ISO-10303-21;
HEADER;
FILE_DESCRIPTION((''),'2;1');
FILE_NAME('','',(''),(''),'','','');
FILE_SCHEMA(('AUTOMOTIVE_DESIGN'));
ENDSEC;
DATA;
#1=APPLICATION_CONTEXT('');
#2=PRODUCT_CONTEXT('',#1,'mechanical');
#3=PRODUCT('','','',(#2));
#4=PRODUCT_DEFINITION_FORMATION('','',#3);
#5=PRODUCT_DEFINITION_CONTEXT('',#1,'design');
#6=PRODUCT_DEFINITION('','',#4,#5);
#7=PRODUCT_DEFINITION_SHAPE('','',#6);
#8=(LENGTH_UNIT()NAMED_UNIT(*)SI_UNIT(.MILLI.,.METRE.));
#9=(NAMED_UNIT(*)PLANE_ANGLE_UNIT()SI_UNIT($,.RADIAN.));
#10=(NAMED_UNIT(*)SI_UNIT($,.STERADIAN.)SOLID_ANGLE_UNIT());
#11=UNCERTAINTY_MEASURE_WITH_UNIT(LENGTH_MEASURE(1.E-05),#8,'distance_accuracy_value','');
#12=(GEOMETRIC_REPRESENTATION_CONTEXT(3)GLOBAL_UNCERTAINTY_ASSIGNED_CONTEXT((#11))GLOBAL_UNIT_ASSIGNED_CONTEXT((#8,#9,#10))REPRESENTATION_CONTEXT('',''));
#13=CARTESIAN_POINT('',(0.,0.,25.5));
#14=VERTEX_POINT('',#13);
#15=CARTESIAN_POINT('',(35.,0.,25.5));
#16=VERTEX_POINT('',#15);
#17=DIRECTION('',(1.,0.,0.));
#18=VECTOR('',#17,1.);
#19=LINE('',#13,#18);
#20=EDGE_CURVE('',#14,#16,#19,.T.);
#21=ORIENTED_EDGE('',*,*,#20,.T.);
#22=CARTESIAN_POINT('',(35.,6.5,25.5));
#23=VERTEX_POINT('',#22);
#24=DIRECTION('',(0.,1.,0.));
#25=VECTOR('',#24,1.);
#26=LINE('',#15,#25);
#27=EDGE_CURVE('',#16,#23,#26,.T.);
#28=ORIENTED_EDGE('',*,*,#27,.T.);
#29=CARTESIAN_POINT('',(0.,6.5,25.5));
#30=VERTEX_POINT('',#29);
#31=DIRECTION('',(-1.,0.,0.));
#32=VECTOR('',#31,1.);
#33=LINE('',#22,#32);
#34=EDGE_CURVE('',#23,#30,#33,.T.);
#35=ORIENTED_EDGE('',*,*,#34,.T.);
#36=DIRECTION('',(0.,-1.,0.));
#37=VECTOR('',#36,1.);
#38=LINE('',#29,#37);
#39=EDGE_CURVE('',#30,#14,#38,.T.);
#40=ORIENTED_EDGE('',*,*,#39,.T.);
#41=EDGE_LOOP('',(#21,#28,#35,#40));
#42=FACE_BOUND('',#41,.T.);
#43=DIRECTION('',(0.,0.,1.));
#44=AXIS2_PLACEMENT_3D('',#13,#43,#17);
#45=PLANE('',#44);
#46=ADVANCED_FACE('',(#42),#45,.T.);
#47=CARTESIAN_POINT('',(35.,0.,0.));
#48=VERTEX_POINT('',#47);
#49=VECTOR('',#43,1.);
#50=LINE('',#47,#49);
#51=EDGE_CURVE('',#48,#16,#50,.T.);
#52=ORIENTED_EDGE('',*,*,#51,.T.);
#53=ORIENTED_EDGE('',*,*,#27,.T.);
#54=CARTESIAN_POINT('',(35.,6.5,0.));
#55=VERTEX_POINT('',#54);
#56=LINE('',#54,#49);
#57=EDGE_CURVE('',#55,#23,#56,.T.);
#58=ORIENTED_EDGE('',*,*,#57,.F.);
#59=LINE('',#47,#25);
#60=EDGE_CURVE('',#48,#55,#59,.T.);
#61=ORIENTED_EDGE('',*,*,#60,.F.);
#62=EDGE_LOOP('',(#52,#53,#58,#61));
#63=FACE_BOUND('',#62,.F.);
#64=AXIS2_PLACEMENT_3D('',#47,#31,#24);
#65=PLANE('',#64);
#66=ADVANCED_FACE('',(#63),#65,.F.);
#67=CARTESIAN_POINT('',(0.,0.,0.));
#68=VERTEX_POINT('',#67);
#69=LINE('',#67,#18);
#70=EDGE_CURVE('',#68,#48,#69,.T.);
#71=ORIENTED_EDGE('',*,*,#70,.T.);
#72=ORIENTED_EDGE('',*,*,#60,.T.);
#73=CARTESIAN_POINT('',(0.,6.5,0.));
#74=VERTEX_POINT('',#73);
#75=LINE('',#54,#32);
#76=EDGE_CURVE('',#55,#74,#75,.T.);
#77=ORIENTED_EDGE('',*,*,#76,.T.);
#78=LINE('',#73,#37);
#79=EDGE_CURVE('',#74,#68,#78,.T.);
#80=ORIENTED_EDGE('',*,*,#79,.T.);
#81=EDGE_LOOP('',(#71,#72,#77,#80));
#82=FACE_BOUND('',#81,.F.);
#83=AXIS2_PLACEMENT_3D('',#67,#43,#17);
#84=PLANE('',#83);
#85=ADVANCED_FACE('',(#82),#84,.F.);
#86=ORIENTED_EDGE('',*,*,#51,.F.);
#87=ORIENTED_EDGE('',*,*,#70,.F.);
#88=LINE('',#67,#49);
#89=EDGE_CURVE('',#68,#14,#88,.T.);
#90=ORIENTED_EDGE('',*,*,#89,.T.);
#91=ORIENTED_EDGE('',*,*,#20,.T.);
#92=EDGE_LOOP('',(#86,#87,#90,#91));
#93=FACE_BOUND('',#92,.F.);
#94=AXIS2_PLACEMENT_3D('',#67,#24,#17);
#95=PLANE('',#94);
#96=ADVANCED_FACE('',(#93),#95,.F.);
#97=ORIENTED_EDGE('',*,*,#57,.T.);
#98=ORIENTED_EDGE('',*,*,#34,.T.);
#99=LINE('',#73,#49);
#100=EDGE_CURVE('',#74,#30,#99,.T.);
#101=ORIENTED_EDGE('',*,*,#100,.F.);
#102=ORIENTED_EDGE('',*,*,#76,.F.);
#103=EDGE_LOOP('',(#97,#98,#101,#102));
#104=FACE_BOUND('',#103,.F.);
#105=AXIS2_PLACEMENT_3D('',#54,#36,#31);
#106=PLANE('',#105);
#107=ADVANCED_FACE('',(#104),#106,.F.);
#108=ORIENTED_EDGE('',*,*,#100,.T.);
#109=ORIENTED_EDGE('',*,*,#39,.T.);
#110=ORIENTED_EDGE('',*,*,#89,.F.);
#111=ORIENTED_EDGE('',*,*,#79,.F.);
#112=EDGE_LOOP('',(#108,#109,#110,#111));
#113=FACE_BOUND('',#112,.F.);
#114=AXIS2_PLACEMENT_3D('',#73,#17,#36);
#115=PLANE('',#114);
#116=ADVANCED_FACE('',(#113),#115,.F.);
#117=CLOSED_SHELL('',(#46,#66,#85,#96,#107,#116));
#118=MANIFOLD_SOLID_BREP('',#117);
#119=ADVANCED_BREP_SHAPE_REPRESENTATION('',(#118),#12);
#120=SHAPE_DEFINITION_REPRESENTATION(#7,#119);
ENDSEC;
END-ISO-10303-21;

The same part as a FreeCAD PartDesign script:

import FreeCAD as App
import Part
import Sketcher


def add_polygon(sketch, points):
    """Adds a closed chain of lines whose ends are joined by coincident constraints."""
    first, n = sketch.GeometryCount, len(points)
    for a, b in zip(points, points[1:] + points[:1]):
        sketch.addGeometry(Part.LineSegment(App.Vector(*a, 0), App.Vector(*b, 0)), False)
    for i in range(n):
        sketch.addConstraint(Sketcher.Constraint("Coincident", first + i, 2, first + (i + 1) % n, 1))

doc = App.newDocument("Part")
params = doc.addObject("Spreadsheet::Sheet", "Params")
for row, (alias, value) in enumerate([
    ("sketch1_width", "35 mm"),
    ("sketch1_height", "6.5 mm"),
    ("pad1_length", "25.5 mm"),
], start=1):
    params.set(f"A{row}", alias)
    params.set(f"B{row}", "=" + value)
    params.setAlias(f"B{row}", alias)

body = doc.addObject("PartDesign::Body", "Body")

# Sketch on XY plane
sketch1 = body.newObject("Sketcher::SketchObject", "Sketch")
sketch1.AttachmentSupport = (doc.getObject("XY_Plane"), [""])
sketch1.MapMode = "FlatFace"
add_polygon(sketch1, [(0, 6), (0, 0), (35, 0), (35, 6)])  # lines 0-3
sketch1.addConstraint([
    Sketcher.Constraint("Vertical", 0),
    Sketcher.Constraint("Horizontal", 1),
    Sketcher.Constraint("Vertical", 2),
    Sketcher.Constraint("Horizontal", 3),
    Sketcher.Constraint("Coincident", 0, 2, -1, 1),
    Sketcher.Constraint("DistanceX", 1, 1, 1, 2, 35.0),
    Sketcher.Constraint("DistanceY", 0, 2, 0, 1, 6.5),
])
sketch1.setExpression("Constraints[9]", "Params.sketch1_width")
sketch1.setExpression("Constraints[10]", "Params.sketch1_height")
pad1 = body.newObject("PartDesign::Pad", "Pad")
pad1.Profile = sketch1
pad1.setExpression("Length", "Params.pad1_length")

doc.recompute()
